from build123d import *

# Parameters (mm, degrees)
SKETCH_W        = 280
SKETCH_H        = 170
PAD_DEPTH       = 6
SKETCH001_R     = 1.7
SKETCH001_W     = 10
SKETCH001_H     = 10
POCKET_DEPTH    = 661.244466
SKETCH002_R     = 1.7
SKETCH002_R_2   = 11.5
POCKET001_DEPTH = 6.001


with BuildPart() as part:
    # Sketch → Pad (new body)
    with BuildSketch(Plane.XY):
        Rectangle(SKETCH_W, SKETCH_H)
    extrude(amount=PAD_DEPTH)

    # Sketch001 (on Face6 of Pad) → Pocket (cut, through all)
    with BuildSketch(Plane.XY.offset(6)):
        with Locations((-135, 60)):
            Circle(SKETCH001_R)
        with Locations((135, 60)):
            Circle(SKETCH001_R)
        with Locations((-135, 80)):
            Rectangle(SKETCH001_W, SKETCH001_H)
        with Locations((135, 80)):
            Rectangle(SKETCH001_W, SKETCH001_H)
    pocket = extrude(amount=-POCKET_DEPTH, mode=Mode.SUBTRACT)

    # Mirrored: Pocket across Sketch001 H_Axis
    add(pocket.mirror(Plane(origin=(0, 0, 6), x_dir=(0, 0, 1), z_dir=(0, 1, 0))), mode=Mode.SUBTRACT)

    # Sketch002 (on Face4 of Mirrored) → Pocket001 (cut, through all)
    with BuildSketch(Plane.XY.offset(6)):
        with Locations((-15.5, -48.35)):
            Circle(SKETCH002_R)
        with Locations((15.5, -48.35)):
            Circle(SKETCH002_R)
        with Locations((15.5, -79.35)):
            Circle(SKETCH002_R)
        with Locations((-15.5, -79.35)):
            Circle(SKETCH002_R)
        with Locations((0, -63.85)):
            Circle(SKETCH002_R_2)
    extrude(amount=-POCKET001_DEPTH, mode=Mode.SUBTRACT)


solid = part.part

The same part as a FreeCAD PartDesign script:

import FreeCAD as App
import Part
import Sketcher
Q = App.Units.Quantity


def add_polygon(sketch, points):
    """Adds a closed chain of lines whose ends are joined by coincident constraints."""
    first, n = sketch.GeometryCount, len(points)
    for a, b in zip(points, points[1:] + points[:1]):
        sketch.addGeometry(Part.LineSegment(App.Vector(*a, 0), App.Vector(*b, 0)), False)
    for i in range(n):
        sketch.addConstraint(Sketcher.Constraint("Coincident", first + i, 2, first + (i + 1) % n, 1))

doc = App.newDocument("Part")
body = doc.addObject("PartDesign::Body", "Body")

sketch1 = body.newObject("Sketcher::SketchObject", "Sketch")
sketch1.AttachmentSupport = (doc.getObject("XY_Plane"), [""])
sketch1.MapMode = "FlatFace"
add_polygon(sketch1, [(-140, 85), (-140, -85), (140, -85), (140, 85)])
sketch1.addConstraint([
    Sketcher.Constraint("Vertical", 0),
    Sketcher.Constraint("Horizontal", 1),
    Sketcher.Constraint("Vertical", 2),
    Sketcher.Constraint("Horizontal", 3),
    Sketcher.Constraint("Symmetric", 0, 2, 2, 2, -1, 1),
    Sketcher.Constraint("DistanceX", 1, 1, 1, 2, Q("280 mm")),
    Sketcher.Constraint("DistanceY", 0, 2, 0, 1, Q("170 mm")),
])
pad1 = body.newObject("PartDesign::Pad", "Pad")
pad1.Profile = sketch1
pad1.Length = 6

sketch2 = body.newObject("Sketcher::SketchObject", "Sketch001")
sketch2.AttachmentSupport = (doc.getObject("XY_Plane"), [""])
sketch2.MapMode = "FlatFace"
sketch2.AttachmentOffset = App.Placement(App.Vector(0, 0, 6), App.Rotation())
sketch2.addGeometry(Part.Circle(App.Vector(-135, 60, 0), App.Vector(0, 0, 1), 1.7), False)
sketch2.addGeometry(Part.Circle(App.Vector(135, 60, 0), App.Vector(0, 0, 1), 1.7), False)
add_polygon(sketch2, [(-140, 85), (-140, 75), (-130, 75), (-130, 85)])
add_polygon(sketch2, [(130, 85), (130, 75), (140, 75), (140, 85)])
sketch2.addConstraint([
    Sketcher.Constraint("Vertical", 2),
    Sketcher.Constraint("Horizontal", 3),
    Sketcher.Constraint("Vertical", 4),
    Sketcher.Constraint("Horizontal", 5),
    Sketcher.Constraint("Vertical", 6),
    Sketcher.Constraint("Horizontal", 7),
    Sketcher.Constraint("Vertical", 8),
    Sketcher.Constraint("Horizontal", 9),
    Sketcher.Constraint("Equal", 0, 1),
    Sketcher.Constraint("Symmetric", 0, 3, 1, 3, -2),
    Sketcher.Constraint("Symmetric", 3, 2, 6, 2, -2),
    Sketcher.Constraint("Symmetric", 5, 2, 8, 2, -2),
    Sketcher.Constraint("Equal", 9, 2),
    Sketcher.Constraint("Diameter", 0, Q("3.4 mm")),
    Sketcher.Constraint("DistanceX", 3, 1, 3, 2, Q("10 mm")),
    Sketcher.Constraint("DistanceX", 0, 3, -1, 1, Q("135 mm")),
    Sketcher.Constraint("DistanceY", -1, 1, 0, 3, Q("60 mm")),
    Sketcher.Constraint("DistanceX", 2, 2, -1, 1, Q("140 mm")),
    Sketcher.Constraint("DistanceY", -1, 1, 2, 2, Q("75 mm")),
])
pocket1 = body.newObject("PartDesign::Pocket", "Pocket")
pocket1.Profile = sketch2
pocket1.Type = "ThroughAll"
doc.recompute()

mirrored = body.newObject("PartDesign::Mirrored", "Mirrored")
mirrored.Originals = [pocket1]
mirrored.MirrorPlane = (doc.getObject("XZ_Plane"), [""])
body.Tip = mirrored

sketch3 = body.newObject("Sketcher::SketchObject", "Sketch002")
sketch3.AttachmentSupport = (doc.getObject("XY_Plane"), [""])
sketch3.MapMode = "FlatFace"
sketch3.AttachmentOffset = App.Placement(App.Vector(0, 0, 6), App.Rotation())
sketch3.addGeometry([
    Part.Circle(App.Vector(-15.5, -48.4, 0), App.Vector(0, 0, 1), 1.7),
    Part.Circle(App.Vector(15.5, -48.4, 0), App.Vector(0, 0, 1), 1.7),
    Part.Circle(App.Vector(15.5, -79.3, 0), App.Vector(0, 0, 1), 1.7),
    Part.Circle(App.Vector(-15.5, -79.3, 0), App.Vector(0, 0, 1), 1.7),
    Part.Circle(App.Vector(0, -63.9, 0), App.Vector(0, 0, 1), 11.5),
], False)
sketch3.addConstraint([
    Sketcher.Constraint("Equal", 0, 1),
    Sketcher.Constraint("Equal", 1, 2),
    Sketcher.Constraint("Equal", 2, 3),
    Sketcher.Constraint("Symmetric", 0, 3, 1, 3, -2),
    Sketcher.Constraint("Symmetric", 2, 3, 3, 3, -2),
    Sketcher.Constraint("PointOnObject", 4, 3, -2),
    Sketcher.Constraint("Vertical", 1, 3, 2, 3),
    Sketcher.Constraint("Diameter", 4, Q("23 mm")),
    Sketcher.Constraint("Diameter", 0, Q("3.4 mm")),
    Sketcher.Constraint("DistanceX", 0, 3, 1, 3, Q("31 mm")),
    Sketcher.Constraint("DistanceY", 2, 3, 1, 3, Q("31 mm")),
    Sketcher.Constraint("DistanceY", 2, 3, 4, 3, Q("15.5 mm")),
    Sketcher.Constraint("DistanceY", 0, 3, -1, 1, Q("48.35 mm")),
])
pocket2 = body.newObject("PartDesign::Pocket", "Pocket001")
pocket2.Profile = sketch3
pocket2.Type = "ThroughAll"

doc.recompute()
